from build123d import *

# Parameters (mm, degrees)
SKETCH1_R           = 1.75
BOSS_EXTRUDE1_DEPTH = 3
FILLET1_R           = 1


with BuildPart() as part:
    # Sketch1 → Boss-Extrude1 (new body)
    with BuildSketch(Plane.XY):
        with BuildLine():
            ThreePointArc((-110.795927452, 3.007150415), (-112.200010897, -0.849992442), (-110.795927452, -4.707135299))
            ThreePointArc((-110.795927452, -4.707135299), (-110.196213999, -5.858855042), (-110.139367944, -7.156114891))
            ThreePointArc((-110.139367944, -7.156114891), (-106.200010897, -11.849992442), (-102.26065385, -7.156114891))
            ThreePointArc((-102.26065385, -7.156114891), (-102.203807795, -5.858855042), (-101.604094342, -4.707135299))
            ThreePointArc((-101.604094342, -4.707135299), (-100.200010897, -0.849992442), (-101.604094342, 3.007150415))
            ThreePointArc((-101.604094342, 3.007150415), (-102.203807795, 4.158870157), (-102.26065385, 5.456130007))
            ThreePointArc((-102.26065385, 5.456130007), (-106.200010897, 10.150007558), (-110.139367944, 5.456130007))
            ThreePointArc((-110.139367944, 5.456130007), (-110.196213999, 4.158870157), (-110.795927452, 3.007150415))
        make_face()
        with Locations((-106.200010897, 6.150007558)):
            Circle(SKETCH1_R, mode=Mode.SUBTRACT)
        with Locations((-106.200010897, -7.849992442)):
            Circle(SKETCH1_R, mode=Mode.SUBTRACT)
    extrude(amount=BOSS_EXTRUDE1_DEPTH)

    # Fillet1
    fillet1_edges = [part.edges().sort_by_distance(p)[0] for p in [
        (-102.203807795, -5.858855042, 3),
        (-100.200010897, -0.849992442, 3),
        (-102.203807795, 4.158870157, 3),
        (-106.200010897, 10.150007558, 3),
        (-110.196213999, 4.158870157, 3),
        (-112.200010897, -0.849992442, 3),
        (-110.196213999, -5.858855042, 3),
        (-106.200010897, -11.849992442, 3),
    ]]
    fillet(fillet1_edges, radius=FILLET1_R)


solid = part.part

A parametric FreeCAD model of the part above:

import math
import FreeCAD as App
import Part
import Sketcher


def edges_at(feature, points):
    """Names of the edges that pass closest to the given points."""
    edges = feature.Shape.Edges
    near = lambda p: min(range(len(edges)), key=lambda i: edges[i].distToShape(Part.Vertex(*p))[0])
    return sorted({f"Edge{near(p) + 1}" for p in points})

doc = App.newDocument("Part")
body = doc.addObject("PartDesign::Body", "Body")

sketch1 = body.newObject("Sketcher::SketchObject", "Sketch")
sketch1.AttachmentSupport = (doc.getObject("XY_Plane"), [""])
sketch1.MapMode = "FlatFace"
sketch1.addGeometry(Part.ArcOfCircle(Part.Circle(App.Vector(-106.2, -0.8, 0), App.Vector(0, 0, 1), 6), math.radians(140), math.radians(220)), False)
sketch1.addGeometry(Part.ArcOfCircle(Part.Circle(App.Vector(-113.1, -6.6, 0), App.Vector(0, 0, 1), 3), math.radians(-10), math.radians(40)), False)
sketch1.addGeometry(Part.ArcOfCircle(Part.Circle(App.Vector(-106.2, -7.8, 0), App.Vector(0, 0, 1), 4), math.radians(170), math.radians(370)), False)
sketch1.addGeometry(Part.ArcOfCircle(Part.Circle(App.Vector(-99.3, -6.6, 0), App.Vector(0, 0, 1), 3), math.radians(140), math.radians(190)), False)
sketch1.addGeometry(Part.ArcOfCircle(Part.Circle(App.Vector(-106.2, -0.8, 0), App.Vector(0, 0, 1), 6), math.radians(-40), math.radians(40)), False)
sketch1.addGeometry(Part.ArcOfCircle(Part.Circle(App.Vector(-99.3, 4.9, 0), App.Vector(0, 0, 1), 3), math.radians(170), math.radians(220)), False)
sketch1.addGeometry(Part.ArcOfCircle(Part.Circle(App.Vector(-106.2, 6.2, 0), App.Vector(0, 0, 1), 4), math.radians(-10), math.radians(190)), False)
sketch1.addGeometry(Part.ArcOfCircle(Part.Circle(App.Vector(-113.1, 4.9, 0), App.Vector(0, 0, 1), 3), math.radians(-40), math.radians(10)), False)
sketch1.addGeometry(Part.Circle(App.Vector(-106.2, -7.8, 0), App.Vector(0, 0, 1), 1.8), False)
sketch1.addGeometry(Part.Circle(App.Vector(-106.2, 6.2, 0), App.Vector(0, 0, 1), 1.8), False)
sketch1.addConstraint(Sketcher.Constraint("Tangent", 0, 2, 1, 2))
sketch1.addConstraint(Sketcher.Constraint("Tangent", 1, 1, 2, 1))
sketch1.addConstraint(Sketcher.Constraint("Tangent", 2, 2, 3, 2))
sketch1.addConstraint(Sketcher.Constraint("Tangent", 3, 1, 4, 1))
sketch1.addConstraint(Sketcher.Constraint("Tangent", 4, 2, 5, 2))
sketch1.addConstraint(Sketcher.Constraint("Tangent", 5, 1, 6, 1))
sketch1.addConstraint(Sketcher.Constraint("Tangent", 6, 2, 7, 2))
sketch1.addConstraint(Sketcher.Constraint("Tangent", 7, 1, 0, 1))
sketch1.addConstraint(Sketcher.Constraint("Coincident", 4, 3, 0, 3))
sketch1.addConstraint(Sketcher.Constraint("Coincident", 8, 3, 2, 3))
sketch1.addConstraint(Sketcher.Constraint("Coincident", 9, 3, 6, 3))
sketch1.addConstraint(Sketcher.Constraint("Equal", 1, 3))
sketch1.addConstraint(Sketcher.Constraint("Equal", 0, 4))
sketch1.addConstraint(Sketcher.Constraint("Equal", 3, 5))
sketch1.addConstraint(Sketcher.Constraint("Equal", 2, 6))
sketch1.addConstraint(Sketcher.Constraint("Equal", 5, 7))
sketch1.addConstraint(Sketcher.Constraint("Equal", 8, 9))
sketch1.addConstraint(Sketcher.Constraint("Horizontal", 1, 3, 3, 3))
sketch1.addConstraint(Sketcher.Constraint("Horizontal", 5, 3, 7, 3))
sketch1.addConstraint(Sketcher.Constraint("Vertical", 3, 3, 5, 3))
sketch1.addConstraint(Sketcher.Constraint("Radius", 0, 6.0))
sketch1.addConstraint(Sketcher.Constraint("Radius", 1, 3.0))
sketch1.addConstraint(Sketcher.Constraint("Radius", 2, 4.0))
sketch1.addConstraint(Sketcher.Constraint("Diameter", 8, 3.5))
sketch1.addConstraint(Sketcher.Constraint("DistanceY", 2, 3, 0, 3, 7.0))
sketch1.addConstraint(Sketcher.Constraint("DistanceX", 0, 3, -1, 1, 106.200011))
sketch1.addConstraint(Sketcher.Constraint("DistanceY", -1, 1, 5, 3, 4.935722))
pad1 = body.newObject("PartDesign::Pad", "Pad")
pad1.Profile = sketch1
pad1.Length = 3
doc.recompute()

fillet = body.newObject("PartDesign::Fillet", "Fillet")
fillet.Base = (pad1, edges_at(pad1, [
    (-102.204, -5.859, 3),
    (-100.2, -0.85, 3),
    (-102.204, 4.159, 3),
    (-106.2, 10.15, 3),
    (-110.196, 4.159, 3),
    (-112.2, -0.85, 3),
    (-110.196, -5.859, 3),
    (-106.2, -11.85, 3),
]))
fillet.Radius = 1

doc.recompute()
